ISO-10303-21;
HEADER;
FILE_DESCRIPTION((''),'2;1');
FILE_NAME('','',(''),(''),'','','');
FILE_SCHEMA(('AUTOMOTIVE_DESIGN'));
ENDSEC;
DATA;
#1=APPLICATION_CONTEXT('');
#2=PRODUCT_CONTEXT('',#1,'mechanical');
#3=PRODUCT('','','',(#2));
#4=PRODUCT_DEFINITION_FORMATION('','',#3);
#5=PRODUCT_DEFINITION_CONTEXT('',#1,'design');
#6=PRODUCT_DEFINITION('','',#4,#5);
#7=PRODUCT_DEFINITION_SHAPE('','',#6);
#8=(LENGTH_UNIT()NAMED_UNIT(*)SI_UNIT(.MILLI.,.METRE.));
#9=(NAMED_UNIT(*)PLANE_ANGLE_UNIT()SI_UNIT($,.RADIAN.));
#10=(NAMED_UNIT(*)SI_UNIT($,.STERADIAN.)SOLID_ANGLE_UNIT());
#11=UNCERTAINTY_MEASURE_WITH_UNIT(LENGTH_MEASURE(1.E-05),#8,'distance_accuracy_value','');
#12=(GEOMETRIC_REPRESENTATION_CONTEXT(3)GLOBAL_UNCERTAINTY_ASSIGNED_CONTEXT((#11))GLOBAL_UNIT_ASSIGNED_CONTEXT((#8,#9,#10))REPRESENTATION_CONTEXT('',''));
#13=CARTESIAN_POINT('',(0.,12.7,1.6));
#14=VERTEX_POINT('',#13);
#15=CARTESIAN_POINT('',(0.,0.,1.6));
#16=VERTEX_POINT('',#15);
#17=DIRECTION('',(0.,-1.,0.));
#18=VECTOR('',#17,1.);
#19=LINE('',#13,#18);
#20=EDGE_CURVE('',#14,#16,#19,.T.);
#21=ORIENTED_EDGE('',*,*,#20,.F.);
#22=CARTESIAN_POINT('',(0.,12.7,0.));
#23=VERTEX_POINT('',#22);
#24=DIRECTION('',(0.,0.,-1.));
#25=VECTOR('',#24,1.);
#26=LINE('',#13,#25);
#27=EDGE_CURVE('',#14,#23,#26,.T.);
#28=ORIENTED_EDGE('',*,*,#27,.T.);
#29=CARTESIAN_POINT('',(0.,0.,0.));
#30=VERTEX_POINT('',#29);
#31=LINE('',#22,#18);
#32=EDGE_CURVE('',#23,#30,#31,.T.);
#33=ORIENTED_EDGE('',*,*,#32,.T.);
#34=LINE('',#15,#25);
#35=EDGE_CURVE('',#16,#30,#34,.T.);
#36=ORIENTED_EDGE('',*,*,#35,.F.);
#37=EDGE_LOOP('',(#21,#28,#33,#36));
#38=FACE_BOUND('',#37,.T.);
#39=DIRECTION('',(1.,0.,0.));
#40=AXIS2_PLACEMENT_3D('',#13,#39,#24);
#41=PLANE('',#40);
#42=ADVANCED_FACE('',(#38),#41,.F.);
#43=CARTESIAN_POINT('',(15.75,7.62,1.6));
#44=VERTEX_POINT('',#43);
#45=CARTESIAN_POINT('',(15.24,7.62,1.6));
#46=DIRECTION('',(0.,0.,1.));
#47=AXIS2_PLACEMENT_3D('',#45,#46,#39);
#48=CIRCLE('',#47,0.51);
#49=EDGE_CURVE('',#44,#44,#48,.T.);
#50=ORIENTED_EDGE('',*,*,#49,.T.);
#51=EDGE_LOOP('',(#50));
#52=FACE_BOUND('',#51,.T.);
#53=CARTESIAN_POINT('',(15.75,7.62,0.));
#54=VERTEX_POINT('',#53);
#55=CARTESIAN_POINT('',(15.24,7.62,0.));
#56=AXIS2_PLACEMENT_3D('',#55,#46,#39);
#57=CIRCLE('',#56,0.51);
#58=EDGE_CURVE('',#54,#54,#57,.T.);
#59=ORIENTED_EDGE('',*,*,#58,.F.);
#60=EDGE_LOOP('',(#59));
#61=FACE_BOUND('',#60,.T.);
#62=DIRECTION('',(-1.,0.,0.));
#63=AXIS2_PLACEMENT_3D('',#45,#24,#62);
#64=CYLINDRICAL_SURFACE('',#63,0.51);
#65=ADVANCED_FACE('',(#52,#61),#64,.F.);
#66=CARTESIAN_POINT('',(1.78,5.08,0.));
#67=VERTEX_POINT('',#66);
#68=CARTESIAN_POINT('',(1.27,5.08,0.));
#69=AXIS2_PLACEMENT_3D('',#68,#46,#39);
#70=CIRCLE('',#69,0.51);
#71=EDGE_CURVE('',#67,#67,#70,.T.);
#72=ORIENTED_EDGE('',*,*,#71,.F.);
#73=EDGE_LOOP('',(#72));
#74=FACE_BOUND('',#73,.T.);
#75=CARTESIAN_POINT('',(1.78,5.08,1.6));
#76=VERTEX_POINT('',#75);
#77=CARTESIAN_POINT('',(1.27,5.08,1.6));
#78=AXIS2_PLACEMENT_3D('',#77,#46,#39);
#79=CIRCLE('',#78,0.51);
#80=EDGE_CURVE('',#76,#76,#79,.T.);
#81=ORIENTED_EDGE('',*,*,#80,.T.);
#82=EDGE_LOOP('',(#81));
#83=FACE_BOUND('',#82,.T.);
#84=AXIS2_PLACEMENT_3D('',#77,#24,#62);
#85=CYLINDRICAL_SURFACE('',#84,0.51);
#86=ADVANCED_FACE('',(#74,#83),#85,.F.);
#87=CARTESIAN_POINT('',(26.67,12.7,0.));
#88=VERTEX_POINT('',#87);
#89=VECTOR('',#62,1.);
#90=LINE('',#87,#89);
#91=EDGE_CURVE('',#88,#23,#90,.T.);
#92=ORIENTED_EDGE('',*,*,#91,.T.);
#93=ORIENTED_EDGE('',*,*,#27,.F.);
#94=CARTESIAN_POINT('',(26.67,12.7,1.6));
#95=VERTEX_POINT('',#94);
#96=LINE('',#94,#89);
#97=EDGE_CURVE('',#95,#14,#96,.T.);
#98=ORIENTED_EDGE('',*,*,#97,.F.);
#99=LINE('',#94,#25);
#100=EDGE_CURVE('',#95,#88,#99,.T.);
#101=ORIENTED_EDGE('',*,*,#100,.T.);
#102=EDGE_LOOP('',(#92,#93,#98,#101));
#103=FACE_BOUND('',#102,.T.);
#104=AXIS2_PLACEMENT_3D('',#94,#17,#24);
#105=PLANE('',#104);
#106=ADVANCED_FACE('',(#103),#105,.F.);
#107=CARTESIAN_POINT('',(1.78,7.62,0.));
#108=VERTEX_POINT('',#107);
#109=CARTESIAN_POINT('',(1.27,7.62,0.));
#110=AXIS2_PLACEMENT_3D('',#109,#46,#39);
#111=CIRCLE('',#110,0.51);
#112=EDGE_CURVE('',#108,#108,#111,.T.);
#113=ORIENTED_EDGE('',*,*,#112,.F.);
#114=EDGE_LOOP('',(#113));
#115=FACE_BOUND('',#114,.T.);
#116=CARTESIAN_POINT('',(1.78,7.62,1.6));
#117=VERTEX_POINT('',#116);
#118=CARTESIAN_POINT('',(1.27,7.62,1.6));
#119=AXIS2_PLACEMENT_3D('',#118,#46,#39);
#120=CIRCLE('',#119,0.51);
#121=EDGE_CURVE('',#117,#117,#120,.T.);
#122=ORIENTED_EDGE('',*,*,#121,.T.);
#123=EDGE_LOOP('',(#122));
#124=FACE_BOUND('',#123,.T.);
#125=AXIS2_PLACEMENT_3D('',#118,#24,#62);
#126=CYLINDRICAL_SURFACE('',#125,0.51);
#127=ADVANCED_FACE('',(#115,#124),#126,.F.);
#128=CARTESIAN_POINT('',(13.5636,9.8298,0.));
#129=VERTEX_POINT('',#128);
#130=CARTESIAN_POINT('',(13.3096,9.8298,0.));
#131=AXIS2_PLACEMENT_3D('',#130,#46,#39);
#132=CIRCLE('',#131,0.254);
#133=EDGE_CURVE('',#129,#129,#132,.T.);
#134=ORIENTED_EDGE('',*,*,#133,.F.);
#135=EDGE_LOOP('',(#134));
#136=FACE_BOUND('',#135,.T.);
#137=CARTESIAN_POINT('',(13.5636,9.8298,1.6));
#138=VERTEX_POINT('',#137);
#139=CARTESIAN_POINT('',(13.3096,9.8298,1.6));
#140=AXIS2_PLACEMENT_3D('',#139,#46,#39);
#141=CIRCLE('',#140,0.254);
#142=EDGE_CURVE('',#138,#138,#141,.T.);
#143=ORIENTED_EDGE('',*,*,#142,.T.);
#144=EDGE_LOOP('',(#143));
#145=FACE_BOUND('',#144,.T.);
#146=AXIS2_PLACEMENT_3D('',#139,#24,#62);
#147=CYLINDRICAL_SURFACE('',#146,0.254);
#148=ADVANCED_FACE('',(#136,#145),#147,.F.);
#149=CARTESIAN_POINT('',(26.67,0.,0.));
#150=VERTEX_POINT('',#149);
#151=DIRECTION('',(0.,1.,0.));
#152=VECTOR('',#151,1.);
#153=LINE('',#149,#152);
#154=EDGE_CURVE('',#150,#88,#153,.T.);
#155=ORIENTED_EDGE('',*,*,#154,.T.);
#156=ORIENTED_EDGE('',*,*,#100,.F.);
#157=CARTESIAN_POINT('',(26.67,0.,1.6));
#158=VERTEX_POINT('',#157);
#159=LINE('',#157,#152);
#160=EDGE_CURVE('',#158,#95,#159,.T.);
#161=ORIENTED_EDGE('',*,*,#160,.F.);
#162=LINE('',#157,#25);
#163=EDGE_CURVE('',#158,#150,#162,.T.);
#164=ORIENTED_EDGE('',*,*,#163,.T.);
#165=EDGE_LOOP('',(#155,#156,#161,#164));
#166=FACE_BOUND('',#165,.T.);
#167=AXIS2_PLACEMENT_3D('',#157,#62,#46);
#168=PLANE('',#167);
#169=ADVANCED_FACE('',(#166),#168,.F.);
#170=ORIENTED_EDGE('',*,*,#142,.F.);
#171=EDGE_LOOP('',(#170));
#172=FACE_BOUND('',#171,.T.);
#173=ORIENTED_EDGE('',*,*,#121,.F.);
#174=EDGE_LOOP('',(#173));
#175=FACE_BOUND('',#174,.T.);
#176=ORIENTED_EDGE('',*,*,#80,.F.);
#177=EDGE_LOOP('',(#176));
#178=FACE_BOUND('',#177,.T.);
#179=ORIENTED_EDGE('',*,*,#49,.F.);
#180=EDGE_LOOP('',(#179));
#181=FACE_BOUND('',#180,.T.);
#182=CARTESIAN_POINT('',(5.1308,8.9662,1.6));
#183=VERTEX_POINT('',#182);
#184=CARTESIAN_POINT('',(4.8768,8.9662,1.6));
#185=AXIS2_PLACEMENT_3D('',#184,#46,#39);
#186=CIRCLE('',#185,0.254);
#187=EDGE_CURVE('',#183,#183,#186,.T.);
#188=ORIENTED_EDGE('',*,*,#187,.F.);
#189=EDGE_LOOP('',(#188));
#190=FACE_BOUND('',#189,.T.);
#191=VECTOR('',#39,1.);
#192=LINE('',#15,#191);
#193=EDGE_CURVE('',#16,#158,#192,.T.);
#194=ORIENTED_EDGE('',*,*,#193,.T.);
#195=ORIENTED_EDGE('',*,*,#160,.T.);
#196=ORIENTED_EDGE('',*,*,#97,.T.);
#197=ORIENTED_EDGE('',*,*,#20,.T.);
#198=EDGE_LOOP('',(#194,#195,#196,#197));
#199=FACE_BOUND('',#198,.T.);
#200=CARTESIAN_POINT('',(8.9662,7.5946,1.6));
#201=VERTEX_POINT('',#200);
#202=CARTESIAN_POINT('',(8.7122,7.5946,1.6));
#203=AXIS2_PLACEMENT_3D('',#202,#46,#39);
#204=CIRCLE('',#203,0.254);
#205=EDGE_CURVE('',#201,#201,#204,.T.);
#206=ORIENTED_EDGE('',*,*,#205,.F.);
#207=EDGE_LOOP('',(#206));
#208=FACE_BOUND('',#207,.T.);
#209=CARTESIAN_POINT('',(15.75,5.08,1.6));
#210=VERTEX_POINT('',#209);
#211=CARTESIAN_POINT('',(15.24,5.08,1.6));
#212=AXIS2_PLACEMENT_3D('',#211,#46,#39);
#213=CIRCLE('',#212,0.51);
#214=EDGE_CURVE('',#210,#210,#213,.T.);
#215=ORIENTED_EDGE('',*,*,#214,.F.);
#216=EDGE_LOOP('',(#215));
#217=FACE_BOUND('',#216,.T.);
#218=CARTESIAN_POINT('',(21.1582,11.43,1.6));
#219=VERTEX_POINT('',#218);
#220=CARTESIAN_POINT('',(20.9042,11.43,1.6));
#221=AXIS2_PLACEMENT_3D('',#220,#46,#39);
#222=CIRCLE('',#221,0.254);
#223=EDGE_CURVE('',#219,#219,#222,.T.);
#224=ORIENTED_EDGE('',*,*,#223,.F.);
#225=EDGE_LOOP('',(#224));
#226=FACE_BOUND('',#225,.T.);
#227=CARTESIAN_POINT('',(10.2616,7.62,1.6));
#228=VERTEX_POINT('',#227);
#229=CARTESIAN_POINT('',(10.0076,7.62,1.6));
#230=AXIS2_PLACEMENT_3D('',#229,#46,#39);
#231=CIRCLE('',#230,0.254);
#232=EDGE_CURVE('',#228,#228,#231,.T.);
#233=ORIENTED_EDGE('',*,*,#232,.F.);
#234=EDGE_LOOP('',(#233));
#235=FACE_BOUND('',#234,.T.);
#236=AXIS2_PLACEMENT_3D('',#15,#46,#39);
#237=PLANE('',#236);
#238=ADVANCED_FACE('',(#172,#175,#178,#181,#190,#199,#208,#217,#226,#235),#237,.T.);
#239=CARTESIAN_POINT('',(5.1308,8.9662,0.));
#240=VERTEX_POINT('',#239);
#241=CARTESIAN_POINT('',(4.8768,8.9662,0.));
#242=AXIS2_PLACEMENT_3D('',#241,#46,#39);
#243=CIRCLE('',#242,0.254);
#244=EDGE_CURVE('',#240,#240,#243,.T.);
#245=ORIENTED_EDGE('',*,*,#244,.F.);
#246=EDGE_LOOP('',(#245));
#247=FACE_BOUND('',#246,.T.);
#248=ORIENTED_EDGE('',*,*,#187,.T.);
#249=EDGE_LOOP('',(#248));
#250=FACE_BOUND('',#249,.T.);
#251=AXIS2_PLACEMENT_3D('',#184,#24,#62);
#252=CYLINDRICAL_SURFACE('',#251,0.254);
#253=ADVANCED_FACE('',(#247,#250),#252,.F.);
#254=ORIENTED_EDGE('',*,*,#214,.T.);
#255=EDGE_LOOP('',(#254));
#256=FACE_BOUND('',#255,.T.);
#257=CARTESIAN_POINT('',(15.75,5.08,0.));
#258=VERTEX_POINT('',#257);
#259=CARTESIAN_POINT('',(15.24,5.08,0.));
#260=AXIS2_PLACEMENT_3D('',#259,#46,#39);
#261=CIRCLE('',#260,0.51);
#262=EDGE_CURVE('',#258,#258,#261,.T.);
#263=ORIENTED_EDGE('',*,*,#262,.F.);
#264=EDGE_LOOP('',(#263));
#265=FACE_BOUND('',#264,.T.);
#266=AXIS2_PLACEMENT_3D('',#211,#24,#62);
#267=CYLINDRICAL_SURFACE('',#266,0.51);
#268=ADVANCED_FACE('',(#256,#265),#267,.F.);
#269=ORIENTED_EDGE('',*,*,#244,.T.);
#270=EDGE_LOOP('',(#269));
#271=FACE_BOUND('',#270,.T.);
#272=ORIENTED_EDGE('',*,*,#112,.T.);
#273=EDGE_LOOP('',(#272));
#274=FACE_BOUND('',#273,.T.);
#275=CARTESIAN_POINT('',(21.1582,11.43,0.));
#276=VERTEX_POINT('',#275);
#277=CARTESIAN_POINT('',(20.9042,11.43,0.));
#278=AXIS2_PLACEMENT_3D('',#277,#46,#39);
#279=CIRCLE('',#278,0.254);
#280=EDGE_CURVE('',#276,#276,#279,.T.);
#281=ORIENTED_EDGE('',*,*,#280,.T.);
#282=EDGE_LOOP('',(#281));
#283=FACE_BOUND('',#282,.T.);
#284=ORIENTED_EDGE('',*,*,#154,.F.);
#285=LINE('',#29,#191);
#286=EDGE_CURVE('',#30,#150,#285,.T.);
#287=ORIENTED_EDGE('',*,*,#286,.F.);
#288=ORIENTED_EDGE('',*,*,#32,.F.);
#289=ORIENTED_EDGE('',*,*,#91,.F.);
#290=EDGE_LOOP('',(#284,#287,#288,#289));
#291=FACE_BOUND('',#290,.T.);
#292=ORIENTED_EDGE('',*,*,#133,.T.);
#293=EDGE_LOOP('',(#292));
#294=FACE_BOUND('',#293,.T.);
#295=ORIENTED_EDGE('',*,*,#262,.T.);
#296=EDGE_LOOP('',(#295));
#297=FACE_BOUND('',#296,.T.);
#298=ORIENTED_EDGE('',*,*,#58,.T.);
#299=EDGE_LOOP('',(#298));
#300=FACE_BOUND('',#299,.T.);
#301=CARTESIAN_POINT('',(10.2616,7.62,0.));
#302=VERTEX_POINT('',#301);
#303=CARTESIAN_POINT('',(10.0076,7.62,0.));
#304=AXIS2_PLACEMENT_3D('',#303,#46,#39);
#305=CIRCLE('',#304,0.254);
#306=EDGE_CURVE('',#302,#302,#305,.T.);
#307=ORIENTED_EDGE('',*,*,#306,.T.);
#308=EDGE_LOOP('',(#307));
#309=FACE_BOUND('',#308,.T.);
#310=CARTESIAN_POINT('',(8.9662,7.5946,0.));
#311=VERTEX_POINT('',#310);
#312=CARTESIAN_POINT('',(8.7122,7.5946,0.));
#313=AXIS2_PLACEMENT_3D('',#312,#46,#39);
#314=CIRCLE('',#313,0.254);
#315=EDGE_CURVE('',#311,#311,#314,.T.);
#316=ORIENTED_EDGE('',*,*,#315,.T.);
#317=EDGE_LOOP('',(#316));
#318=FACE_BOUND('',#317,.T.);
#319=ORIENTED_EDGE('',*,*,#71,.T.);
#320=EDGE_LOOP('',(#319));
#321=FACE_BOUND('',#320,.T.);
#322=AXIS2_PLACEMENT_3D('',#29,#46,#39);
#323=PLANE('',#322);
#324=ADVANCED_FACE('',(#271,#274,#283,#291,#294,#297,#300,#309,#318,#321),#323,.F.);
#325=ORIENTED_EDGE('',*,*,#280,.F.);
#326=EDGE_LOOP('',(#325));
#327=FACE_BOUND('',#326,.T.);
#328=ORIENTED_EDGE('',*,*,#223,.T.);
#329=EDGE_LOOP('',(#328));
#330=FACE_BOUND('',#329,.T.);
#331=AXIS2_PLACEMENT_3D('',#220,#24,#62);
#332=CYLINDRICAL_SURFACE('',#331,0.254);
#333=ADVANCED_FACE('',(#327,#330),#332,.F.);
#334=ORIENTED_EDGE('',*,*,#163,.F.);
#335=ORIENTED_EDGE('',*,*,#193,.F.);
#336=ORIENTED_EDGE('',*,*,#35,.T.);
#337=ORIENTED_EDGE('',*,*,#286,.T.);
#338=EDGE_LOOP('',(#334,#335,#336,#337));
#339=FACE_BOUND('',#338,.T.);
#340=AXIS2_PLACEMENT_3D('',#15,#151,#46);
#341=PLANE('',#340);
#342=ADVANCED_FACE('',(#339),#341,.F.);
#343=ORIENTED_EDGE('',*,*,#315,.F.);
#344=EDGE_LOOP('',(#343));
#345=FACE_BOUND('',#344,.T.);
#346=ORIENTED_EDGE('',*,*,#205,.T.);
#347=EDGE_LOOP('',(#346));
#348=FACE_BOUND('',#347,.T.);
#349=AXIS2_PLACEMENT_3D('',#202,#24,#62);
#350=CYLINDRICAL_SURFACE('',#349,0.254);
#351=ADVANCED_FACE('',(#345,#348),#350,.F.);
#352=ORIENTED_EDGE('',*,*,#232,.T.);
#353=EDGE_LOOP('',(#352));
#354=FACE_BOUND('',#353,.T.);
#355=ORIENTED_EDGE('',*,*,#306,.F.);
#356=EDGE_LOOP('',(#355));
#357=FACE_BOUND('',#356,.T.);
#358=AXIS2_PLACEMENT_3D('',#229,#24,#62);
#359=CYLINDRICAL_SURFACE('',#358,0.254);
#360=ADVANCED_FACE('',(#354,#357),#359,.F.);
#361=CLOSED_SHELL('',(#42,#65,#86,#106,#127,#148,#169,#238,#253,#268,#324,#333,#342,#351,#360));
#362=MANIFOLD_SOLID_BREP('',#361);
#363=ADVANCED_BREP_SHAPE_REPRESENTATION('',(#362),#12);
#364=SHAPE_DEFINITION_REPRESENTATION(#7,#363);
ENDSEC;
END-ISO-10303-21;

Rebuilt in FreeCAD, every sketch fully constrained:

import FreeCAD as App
import Part
import Sketcher

V = App.Vector
Q = App.Units.Quantity

doc = App.newDocument("Part")
body = doc.addObject("PartDesign::Body", "Body")

sketch1 = doc.addObject("Sketcher::SketchObject", "Sketch")
body.addObject(sketch1)
sketch1.AttachmentSupport = (doc.XY_Plane, [""])
sketch1.MapMode = "FlatFace"
sketch1.addGeometry([
    Part.LineSegment(V(0, 12.7, 0), V(0, 0, 0)),
    Part.LineSegment(V(0, 0, 0), V(26.67, 0, 0)),
    Part.LineSegment(V(26.67, 0, 0), V(26.67, 12.7, 0)),
    Part.LineSegment(V(26.67, 12.7, 0), V(0, 12.7, 0)),
], False)
sketch1.addConstraint([
    Sketcher.Constraint("Coincident", 0, 2, 1, 1),
    Sketcher.Constraint("Coincident", 1, 2, 2, 1),
    Sketcher.Constraint("Coincident", 2, 2, 3, 1),
    Sketcher.Constraint("Coincident", 3, 2, 0, 1),
    Sketcher.Constraint("Vertical", 0),
    Sketcher.Constraint("Horizontal", 1),
    Sketcher.Constraint("Vertical", 2),
    Sketcher.Constraint("Horizontal", 3),
    Sketcher.Constraint("Coincident", 0, 2, -1, 1),
    Sketcher.Constraint("DistanceY", 0, 2, 0, 1, Q("0.5 in")),
    Sketcher.Constraint("DistanceX", 1, 1, 1, 2, Q("1.05 in")),
])
pad1 = doc.addObject("PartDesign::Pad", "Pad")
body.addObject(pad1)
pad1.Profile = sketch1
pad1.Length = 1.6

sketch2 = doc.addObject("Sketcher::SketchObject", "Sketch001")
body.addObject(sketch2)
sketch2.AttachmentSupport = (doc.XY_Plane, [""])
sketch2.MapMode = "FlatFace"
sketch2.addGeometry([
    Part.Circle(V(8.7122, 7.5946, 0), V(0, 0, 1), 0.254),
    Part.Circle(V(10.0076, 7.62, 0), V(0, 0, 1), 0.254),
    Part.Circle(V(13.3096, 9.8298, 0), V(0, 0, 1), 0.254),
    Part.Circle(V(20.9042, 11.43, 0), V(0, 0, 1), 0.254),
    Part.Circle(V(4.8768, 8.9662, 0), V(0, 0, 1), 0.254),
], False)
sketch2.addConstraint([
    Sketcher.Constraint("Equal", 0, 1),
    Sketcher.Constraint("Equal", 1, 2),
    Sketcher.Constraint("Equal", 2, 3),
    Sketcher.Constraint("Equal", 3, 4),
    Sketcher.Constraint("Diameter", 0, Q("0.02 in")),
    Sketcher.Constraint("DistanceY", -1, 1, 1, 3, Q("0.3 in")),
    Sketcher.Constraint("DistanceY", -1, 1, 3, 3, Q("0.45 in")),
    Sketcher.Constraint("DistanceX", 1, 3, 2, 3, Q("0.13 in")),
    Sketcher.Constraint("DistanceX", 0, 3, 3, 3, Q("0.48 in")),
    Sketcher.Constraint("DistanceX", -1, 1, 0, 3, Q("0.343 in")),
    Sketcher.Constraint("DistanceY", -1, 1, 0, 3, Q("0.299 in")),
    Sketcher.Constraint("DistanceX", -1, 1, 1, 3, Q("0.394 in")),
    Sketcher.Constraint("DistanceY", -1, 1, 2, 3, Q("0.387 in")),
    Sketcher.Constraint("DistanceX", -1, 1, 4, 3, Q("0.192 in")),
    Sketcher.Constraint("DistanceY", -1, 1, 4, 3, Q("0.353 in")),
])
pocket1 = doc.addObject("PartDesign::Pocket", "Pocket")
body.addObject(pocket1)
pocket1.Profile = sketch2
pocket1.Type = "ThroughAll"
pocket1.Reversed = True

sketch3 = doc.addObject("Sketcher::SketchObject", "Sketch002")
body.addObject(sketch3)
sketch3.AttachmentSupport = (doc.XY_Plane, [""])
sketch3.MapMode = "FlatFace"
sketch3.addGeometry([
    Part.Circle(V(1.27, 7.62, 0), V(0, 0, 1), 0.51),
    Part.Circle(V(1.27, 5.08, 0), V(0, 0, 1), 0.51),
    Part.Circle(V(15.24, 7.62, 0), V(0, 0, 1), 0.51),
    Part.Circle(V(15.24, 5.08, 0), V(0, 0, 1), 0.51),
], False)
sketch3.addConstraint([
    Sketcher.Constraint("Equal", 0, 1),
    Sketcher.Constraint("Equal", 1, 2),
    Sketcher.Constraint("Equal", 2, 3),
    Sketcher.Constraint("Horizontal", 0, 3, 2, 3),
    Sketcher.Constraint("Horizontal", 1, 3, 3, 3),
    Sketcher.Constraint("Vertical", 0, 3, 1, 3),
    Sketcher.Constraint("Vertical", 2, 3, 3, 3),
    Sketcher.Constraint("DistanceY", -1, 1, 0, 3, Q("0.3 in")),
    Sketcher.Constraint("DistanceY", -1, 1, 1, 3, Q("0.2 in")),
    Sketcher.Constraint("DistanceX", -1, 1, 2, 3, Q("0.6 in")),
    Sketcher.Constraint("Diameter", 0, Q("1.02 mm")),
    Sketcher.Constraint("DistanceX", -1, 1, 0, 3, Q("0.05 in")),
])
pocket2 = doc.addObject("PartDesign::Pocket", "Pocket001")
body.addObject(pocket2)
pocket2.Profile = sketch3
pocket2.Type = "ThroughAll"
pocket2.Reversed = True

doc.recompute()
